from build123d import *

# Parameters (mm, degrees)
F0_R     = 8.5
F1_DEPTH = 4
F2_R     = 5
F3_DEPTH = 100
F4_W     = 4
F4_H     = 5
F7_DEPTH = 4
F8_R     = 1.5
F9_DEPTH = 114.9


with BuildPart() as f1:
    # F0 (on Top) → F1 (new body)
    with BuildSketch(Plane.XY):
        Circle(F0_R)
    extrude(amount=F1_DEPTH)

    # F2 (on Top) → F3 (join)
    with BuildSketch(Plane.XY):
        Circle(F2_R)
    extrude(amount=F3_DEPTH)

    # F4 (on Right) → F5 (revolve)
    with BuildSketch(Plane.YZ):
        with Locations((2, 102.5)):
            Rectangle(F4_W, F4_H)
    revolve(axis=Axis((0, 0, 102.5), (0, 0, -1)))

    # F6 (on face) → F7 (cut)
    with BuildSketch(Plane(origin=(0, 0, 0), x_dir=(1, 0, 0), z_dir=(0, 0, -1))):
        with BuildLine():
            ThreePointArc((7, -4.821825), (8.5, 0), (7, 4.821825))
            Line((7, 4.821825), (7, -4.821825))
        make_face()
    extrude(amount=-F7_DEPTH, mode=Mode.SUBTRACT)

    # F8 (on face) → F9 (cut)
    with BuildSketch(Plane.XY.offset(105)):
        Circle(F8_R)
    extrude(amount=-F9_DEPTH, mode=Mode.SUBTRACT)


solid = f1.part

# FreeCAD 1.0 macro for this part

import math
import FreeCAD as App
import Part
import Sketcher

V = App.Vector


def add_polygon(sketch, points):
    """Adds a closed chain of lines whose ends are joined by coincident constraints."""
    first, n = sketch.GeometryCount, len(points)
    for a, b in zip(points, points[1:] + points[:1]):
        sketch.addGeometry(Part.LineSegment(App.Vector(*a, 0), App.Vector(*b, 0)), False)
    for i in range(n):
        sketch.addConstraint(Sketcher.Constraint("Coincident", first + i, 2, first + (i + 1) % n, 1))

doc = App.newDocument("Part")
params = doc.addObject("Spreadsheet::Sheet", "Params")
for row, (alias, value) in enumerate([
    ("sketch1_diameter", "17 mm"),
    ("pad1_length", "4 mm"),
    ("sketch2_diameter", "10 mm"),
    ("pad2_length", "100 mm"),
    ("sketch3_width", "4 mm"),
    ("sketch3_height", "5 mm"),
    ("revolution_angle", "360 deg"),
    ("sketch4_radius", "8.499999 mm"),
    ("pocket1_length", "4 mm"),
    ("sketch5_diameter", "3 mm"),
    ("pocket2_length", "114.9 mm"),
], start=1):
    params.set(f"A{row}", alias)
    params.set(f"B{row}", "=" + value)
    params.setAlias(f"B{row}", alias)

body = doc.addObject("PartDesign::Body", "Body")

sketch1 = doc.addObject("Sketcher::SketchObject", "Sketch")
body.addObject(sketch1)
sketch1.AttachmentSupport = (doc.XY_Plane, [""])
sketch1.MapMode = "FlatFace"
sketch1.addGeometry(Part.Circle(V(0, 0, 0), V(0, 0, 1), 8.5), False)
sketch1.addConstraint(Sketcher.Constraint("Coincident", 0, 3, -1, 1))
sketch1.addConstraint(Sketcher.Constraint("Diameter", 0, 17.0))
sketch1.setExpression("Constraints[1]", "Params.sketch1_diameter")
pad1 = doc.addObject("PartDesign::Pad", "Pad")
body.addObject(pad1)
pad1.Profile = sketch1
pad1.setExpression("Length", "Params.pad1_length")

sketch2 = doc.addObject("Sketcher::SketchObject", "Sketch001")
body.addObject(sketch2)
sketch2.AttachmentSupport = (doc.XY_Plane, [""])
sketch2.MapMode = "FlatFace"
sketch2.addGeometry(Part.Circle(V(0, 0, 0), V(0, 0, 1), 5), False)
sketch2.addConstraint(Sketcher.Constraint("Coincident", 0, 3, -1, 1))
sketch2.addConstraint(Sketcher.Constraint("Diameter", 0, 10.0))
sketch2.setExpression("Constraints[1]", "Params.sketch2_diameter")
pad2 = doc.addObject("PartDesign::Pad", "Pad001")
body.addObject(pad2)
pad2.Profile = sketch2
pad2.setExpression("Length", "Params.pad2_length")

sketch3 = doc.addObject("Sketcher::SketchObject", "Sketch002")
body.addObject(sketch3)
sketch3.AttachmentSupport = (doc.YZ_Plane, [""])
sketch3.MapMode = "FlatFace"
add_polygon(sketch3, [(0, 105), (0, 100), (4, 100), (4, 105)])
sketch3.addConstraint(Sketcher.Constraint("Vertical", 0))
sketch3.addConstraint(Sketcher.Constraint("Horizontal", 1))
sketch3.addConstraint(Sketcher.Constraint("Vertical", 2))
sketch3.addConstraint(Sketcher.Constraint("Horizontal", 3))
sketch3.addConstraint(Sketcher.Constraint("PointOnObject", 0, 2, -2))
sketch3.addConstraint(Sketcher.Constraint("DistanceX", 1, 1, 1, 2, 4.0))
sketch3.addConstraint(Sketcher.Constraint("DistanceY", 0, 2, 0, 1, 5.0))
sketch3.addConstraint(Sketcher.Constraint("DistanceY", -1, 1, 0, 2, 100.0))
sketch3.setExpression("Constraints[9]", "Params.sketch3_width")
sketch3.setExpression("Constraints[10]", "Params.sketch3_height")
revolution = doc.addObject("PartDesign::Revolution", "Revolution")
body.addObject(revolution)
revolution.Profile = sketch3
revolution.ReferenceAxis = (sketch3, ["V_Axis"])
revolution.setExpression("Angle", "Params.revolution_angle")

sketch4 = doc.addObject("Sketcher::SketchObject", "Sketch003")
body.addObject(sketch4)
sketch4.AttachmentSupport = (doc.XY_Plane, [""])
sketch4.MapMode = "FlatFace"
sketch4.addGeometry(Part.ArcOfCircle(Part.Circle(V(0.000001, 0, 0), V(0, 0, 1), 8.499999), math.radians(-34.560324), math.radians(34.560324)), False)
sketch4.addGeometry(Part.LineSegment(V(7, -4.821825, 0), V(7, 4.821825, 0)), False)
sketch4.addConstraint(Sketcher.Constraint("Coincident", 0, 1, 1, 1))
sketch4.addConstraint(Sketcher.Constraint("Coincident", 1, 2, 0, 2))
sketch4.addConstraint(Sketcher.Constraint("Vertical", 1))
sketch4.addConstraint(Sketcher.Constraint("Coincident", 0, 3, -1, 1))
sketch4.addConstraint(Sketcher.Constraint("Radius", 0, 8.499999))
sketch4.addConstraint(Sketcher.Constraint("DistanceX", -1, 1, 0, 1, 7.0))
sketch4.setExpression("Constraints[4]", "Params.sketch4_radius")
pocket1 = doc.addObject("PartDesign::Pocket", "Pocket")
body.addObject(pocket1)
pocket1.Profile = sketch4
pocket1.setExpression("Length", "Params.pocket1_length")
pocket1.Reversed = True

sketch5 = doc.addObject("Sketcher::SketchObject", "Sketch004")
body.addObject(sketch5)
sketch5.AttachmentSupport = (doc.XY_Plane, [""])
sketch5.MapMode = "FlatFace"
sketch5.AttachmentOffset = App.Placement(V(0, 0, 105), App.Rotation())
sketch5.addGeometry(Part.Circle(V(0, 0, 0), V(0, 0, 1), 1.5), False)
sketch5.addConstraint(Sketcher.Constraint("Coincident", 0, 3, -1, 1))
sketch5.addConstraint(Sketcher.Constraint("Diameter", 0, 3.0))
sketch5.setExpression("Constraints[1]", "Params.sketch5_diameter")
pocket2 = doc.addObject("PartDesign::Pocket", "Pocket001")
body.addObject(pocket2)
pocket2.Profile = sketch5
pocket2.setExpression("Length", "Params.pocket2_length")

doc.recompute()
